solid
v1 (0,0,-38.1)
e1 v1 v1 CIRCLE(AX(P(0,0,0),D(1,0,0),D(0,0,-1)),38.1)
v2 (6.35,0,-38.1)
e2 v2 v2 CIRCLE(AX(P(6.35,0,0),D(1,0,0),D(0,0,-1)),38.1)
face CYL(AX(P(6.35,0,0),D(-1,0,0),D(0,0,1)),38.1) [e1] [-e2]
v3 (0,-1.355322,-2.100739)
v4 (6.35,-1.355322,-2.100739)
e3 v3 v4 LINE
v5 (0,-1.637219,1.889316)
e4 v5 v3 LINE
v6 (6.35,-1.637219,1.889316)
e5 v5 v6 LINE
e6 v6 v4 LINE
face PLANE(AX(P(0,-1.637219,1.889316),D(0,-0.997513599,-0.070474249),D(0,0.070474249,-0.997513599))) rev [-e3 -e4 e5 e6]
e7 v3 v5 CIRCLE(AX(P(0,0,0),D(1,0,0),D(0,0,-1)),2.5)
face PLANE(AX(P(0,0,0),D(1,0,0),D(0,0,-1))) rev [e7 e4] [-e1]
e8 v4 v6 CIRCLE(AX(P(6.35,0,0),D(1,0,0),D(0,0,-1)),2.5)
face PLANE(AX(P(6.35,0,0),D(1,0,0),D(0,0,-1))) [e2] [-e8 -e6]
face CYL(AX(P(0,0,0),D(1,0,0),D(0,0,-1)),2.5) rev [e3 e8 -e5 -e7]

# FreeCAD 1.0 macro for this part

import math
import FreeCAD as App
import Part
import Sketcher
from FreeCAD import Vector

doc = App.newDocument("Part")
body = doc.addObject("PartDesign::Body", "Body")

# Sketch on YZ plane
sketch1 = body.newObject("Sketcher::SketchObject", "Sketch")
sketch1.AttachmentSupport = (doc.getObject("YZ_Plane"), [""])
sketch1.MapMode = "FlatFace"
sketch1.addGeometry(Part.Circle(Vector(0, 0, 0), Vector(0, 0, 1), 38), False)
sketch1.addConstraint([
    Sketcher.Constraint("Coincident", 0, 3, -1, 1),
    Sketcher.Constraint("Diameter", 0, 76.2),
])
pad1 = body.newObject("PartDesign::Pad", "Pad")
pad1.Profile = sketch1
pad1.Length = 6.35

# Sketch on YZ plane
sketch2 = body.newObject("Sketcher::SketchObject", "Sketch001")
sketch2.AttachmentSupport = (doc.getObject("YZ_Plane"), [""])
sketch2.MapMode = "FlatFace"
sketch2.AttachmentOffset = App.Placement(Vector(0, 0, 6.35), App.Rotation())
sketch2.addGeometry([
    Part.LineSegment(Vector(-1.6, 1.9, 0), Vector(-1.4, -2.1, 0)),
    Part.ArcOfCircle(Part.Circle(Vector(0, 0, 0), Vector(0, 0, 1), 2.5), math.radians(-123), math.radians(131)),
], False)
sketch2.addConstraint([
    Sketcher.Constraint("Coincident", 0, 1, 1, 2),
    Sketcher.Constraint("Coincident", 1, 1, 0, 2),
    Sketcher.Constraint("Coincident", 1, 3, -1, 1),
    Sketcher.Constraint("Radius", 1, 2.5),
    Sketcher.Constraint("Distance", 0, 4.0),
    Sketcher.Constraint("DistanceX", 0, 1, -1, 1, 1.637219),
])
pocket1 = body.newObject("PartDesign::Pocket", "Pocket")
pocket1.Profile = sketch2
pocket1.Type = "ThroughAll"

doc.recompute()
